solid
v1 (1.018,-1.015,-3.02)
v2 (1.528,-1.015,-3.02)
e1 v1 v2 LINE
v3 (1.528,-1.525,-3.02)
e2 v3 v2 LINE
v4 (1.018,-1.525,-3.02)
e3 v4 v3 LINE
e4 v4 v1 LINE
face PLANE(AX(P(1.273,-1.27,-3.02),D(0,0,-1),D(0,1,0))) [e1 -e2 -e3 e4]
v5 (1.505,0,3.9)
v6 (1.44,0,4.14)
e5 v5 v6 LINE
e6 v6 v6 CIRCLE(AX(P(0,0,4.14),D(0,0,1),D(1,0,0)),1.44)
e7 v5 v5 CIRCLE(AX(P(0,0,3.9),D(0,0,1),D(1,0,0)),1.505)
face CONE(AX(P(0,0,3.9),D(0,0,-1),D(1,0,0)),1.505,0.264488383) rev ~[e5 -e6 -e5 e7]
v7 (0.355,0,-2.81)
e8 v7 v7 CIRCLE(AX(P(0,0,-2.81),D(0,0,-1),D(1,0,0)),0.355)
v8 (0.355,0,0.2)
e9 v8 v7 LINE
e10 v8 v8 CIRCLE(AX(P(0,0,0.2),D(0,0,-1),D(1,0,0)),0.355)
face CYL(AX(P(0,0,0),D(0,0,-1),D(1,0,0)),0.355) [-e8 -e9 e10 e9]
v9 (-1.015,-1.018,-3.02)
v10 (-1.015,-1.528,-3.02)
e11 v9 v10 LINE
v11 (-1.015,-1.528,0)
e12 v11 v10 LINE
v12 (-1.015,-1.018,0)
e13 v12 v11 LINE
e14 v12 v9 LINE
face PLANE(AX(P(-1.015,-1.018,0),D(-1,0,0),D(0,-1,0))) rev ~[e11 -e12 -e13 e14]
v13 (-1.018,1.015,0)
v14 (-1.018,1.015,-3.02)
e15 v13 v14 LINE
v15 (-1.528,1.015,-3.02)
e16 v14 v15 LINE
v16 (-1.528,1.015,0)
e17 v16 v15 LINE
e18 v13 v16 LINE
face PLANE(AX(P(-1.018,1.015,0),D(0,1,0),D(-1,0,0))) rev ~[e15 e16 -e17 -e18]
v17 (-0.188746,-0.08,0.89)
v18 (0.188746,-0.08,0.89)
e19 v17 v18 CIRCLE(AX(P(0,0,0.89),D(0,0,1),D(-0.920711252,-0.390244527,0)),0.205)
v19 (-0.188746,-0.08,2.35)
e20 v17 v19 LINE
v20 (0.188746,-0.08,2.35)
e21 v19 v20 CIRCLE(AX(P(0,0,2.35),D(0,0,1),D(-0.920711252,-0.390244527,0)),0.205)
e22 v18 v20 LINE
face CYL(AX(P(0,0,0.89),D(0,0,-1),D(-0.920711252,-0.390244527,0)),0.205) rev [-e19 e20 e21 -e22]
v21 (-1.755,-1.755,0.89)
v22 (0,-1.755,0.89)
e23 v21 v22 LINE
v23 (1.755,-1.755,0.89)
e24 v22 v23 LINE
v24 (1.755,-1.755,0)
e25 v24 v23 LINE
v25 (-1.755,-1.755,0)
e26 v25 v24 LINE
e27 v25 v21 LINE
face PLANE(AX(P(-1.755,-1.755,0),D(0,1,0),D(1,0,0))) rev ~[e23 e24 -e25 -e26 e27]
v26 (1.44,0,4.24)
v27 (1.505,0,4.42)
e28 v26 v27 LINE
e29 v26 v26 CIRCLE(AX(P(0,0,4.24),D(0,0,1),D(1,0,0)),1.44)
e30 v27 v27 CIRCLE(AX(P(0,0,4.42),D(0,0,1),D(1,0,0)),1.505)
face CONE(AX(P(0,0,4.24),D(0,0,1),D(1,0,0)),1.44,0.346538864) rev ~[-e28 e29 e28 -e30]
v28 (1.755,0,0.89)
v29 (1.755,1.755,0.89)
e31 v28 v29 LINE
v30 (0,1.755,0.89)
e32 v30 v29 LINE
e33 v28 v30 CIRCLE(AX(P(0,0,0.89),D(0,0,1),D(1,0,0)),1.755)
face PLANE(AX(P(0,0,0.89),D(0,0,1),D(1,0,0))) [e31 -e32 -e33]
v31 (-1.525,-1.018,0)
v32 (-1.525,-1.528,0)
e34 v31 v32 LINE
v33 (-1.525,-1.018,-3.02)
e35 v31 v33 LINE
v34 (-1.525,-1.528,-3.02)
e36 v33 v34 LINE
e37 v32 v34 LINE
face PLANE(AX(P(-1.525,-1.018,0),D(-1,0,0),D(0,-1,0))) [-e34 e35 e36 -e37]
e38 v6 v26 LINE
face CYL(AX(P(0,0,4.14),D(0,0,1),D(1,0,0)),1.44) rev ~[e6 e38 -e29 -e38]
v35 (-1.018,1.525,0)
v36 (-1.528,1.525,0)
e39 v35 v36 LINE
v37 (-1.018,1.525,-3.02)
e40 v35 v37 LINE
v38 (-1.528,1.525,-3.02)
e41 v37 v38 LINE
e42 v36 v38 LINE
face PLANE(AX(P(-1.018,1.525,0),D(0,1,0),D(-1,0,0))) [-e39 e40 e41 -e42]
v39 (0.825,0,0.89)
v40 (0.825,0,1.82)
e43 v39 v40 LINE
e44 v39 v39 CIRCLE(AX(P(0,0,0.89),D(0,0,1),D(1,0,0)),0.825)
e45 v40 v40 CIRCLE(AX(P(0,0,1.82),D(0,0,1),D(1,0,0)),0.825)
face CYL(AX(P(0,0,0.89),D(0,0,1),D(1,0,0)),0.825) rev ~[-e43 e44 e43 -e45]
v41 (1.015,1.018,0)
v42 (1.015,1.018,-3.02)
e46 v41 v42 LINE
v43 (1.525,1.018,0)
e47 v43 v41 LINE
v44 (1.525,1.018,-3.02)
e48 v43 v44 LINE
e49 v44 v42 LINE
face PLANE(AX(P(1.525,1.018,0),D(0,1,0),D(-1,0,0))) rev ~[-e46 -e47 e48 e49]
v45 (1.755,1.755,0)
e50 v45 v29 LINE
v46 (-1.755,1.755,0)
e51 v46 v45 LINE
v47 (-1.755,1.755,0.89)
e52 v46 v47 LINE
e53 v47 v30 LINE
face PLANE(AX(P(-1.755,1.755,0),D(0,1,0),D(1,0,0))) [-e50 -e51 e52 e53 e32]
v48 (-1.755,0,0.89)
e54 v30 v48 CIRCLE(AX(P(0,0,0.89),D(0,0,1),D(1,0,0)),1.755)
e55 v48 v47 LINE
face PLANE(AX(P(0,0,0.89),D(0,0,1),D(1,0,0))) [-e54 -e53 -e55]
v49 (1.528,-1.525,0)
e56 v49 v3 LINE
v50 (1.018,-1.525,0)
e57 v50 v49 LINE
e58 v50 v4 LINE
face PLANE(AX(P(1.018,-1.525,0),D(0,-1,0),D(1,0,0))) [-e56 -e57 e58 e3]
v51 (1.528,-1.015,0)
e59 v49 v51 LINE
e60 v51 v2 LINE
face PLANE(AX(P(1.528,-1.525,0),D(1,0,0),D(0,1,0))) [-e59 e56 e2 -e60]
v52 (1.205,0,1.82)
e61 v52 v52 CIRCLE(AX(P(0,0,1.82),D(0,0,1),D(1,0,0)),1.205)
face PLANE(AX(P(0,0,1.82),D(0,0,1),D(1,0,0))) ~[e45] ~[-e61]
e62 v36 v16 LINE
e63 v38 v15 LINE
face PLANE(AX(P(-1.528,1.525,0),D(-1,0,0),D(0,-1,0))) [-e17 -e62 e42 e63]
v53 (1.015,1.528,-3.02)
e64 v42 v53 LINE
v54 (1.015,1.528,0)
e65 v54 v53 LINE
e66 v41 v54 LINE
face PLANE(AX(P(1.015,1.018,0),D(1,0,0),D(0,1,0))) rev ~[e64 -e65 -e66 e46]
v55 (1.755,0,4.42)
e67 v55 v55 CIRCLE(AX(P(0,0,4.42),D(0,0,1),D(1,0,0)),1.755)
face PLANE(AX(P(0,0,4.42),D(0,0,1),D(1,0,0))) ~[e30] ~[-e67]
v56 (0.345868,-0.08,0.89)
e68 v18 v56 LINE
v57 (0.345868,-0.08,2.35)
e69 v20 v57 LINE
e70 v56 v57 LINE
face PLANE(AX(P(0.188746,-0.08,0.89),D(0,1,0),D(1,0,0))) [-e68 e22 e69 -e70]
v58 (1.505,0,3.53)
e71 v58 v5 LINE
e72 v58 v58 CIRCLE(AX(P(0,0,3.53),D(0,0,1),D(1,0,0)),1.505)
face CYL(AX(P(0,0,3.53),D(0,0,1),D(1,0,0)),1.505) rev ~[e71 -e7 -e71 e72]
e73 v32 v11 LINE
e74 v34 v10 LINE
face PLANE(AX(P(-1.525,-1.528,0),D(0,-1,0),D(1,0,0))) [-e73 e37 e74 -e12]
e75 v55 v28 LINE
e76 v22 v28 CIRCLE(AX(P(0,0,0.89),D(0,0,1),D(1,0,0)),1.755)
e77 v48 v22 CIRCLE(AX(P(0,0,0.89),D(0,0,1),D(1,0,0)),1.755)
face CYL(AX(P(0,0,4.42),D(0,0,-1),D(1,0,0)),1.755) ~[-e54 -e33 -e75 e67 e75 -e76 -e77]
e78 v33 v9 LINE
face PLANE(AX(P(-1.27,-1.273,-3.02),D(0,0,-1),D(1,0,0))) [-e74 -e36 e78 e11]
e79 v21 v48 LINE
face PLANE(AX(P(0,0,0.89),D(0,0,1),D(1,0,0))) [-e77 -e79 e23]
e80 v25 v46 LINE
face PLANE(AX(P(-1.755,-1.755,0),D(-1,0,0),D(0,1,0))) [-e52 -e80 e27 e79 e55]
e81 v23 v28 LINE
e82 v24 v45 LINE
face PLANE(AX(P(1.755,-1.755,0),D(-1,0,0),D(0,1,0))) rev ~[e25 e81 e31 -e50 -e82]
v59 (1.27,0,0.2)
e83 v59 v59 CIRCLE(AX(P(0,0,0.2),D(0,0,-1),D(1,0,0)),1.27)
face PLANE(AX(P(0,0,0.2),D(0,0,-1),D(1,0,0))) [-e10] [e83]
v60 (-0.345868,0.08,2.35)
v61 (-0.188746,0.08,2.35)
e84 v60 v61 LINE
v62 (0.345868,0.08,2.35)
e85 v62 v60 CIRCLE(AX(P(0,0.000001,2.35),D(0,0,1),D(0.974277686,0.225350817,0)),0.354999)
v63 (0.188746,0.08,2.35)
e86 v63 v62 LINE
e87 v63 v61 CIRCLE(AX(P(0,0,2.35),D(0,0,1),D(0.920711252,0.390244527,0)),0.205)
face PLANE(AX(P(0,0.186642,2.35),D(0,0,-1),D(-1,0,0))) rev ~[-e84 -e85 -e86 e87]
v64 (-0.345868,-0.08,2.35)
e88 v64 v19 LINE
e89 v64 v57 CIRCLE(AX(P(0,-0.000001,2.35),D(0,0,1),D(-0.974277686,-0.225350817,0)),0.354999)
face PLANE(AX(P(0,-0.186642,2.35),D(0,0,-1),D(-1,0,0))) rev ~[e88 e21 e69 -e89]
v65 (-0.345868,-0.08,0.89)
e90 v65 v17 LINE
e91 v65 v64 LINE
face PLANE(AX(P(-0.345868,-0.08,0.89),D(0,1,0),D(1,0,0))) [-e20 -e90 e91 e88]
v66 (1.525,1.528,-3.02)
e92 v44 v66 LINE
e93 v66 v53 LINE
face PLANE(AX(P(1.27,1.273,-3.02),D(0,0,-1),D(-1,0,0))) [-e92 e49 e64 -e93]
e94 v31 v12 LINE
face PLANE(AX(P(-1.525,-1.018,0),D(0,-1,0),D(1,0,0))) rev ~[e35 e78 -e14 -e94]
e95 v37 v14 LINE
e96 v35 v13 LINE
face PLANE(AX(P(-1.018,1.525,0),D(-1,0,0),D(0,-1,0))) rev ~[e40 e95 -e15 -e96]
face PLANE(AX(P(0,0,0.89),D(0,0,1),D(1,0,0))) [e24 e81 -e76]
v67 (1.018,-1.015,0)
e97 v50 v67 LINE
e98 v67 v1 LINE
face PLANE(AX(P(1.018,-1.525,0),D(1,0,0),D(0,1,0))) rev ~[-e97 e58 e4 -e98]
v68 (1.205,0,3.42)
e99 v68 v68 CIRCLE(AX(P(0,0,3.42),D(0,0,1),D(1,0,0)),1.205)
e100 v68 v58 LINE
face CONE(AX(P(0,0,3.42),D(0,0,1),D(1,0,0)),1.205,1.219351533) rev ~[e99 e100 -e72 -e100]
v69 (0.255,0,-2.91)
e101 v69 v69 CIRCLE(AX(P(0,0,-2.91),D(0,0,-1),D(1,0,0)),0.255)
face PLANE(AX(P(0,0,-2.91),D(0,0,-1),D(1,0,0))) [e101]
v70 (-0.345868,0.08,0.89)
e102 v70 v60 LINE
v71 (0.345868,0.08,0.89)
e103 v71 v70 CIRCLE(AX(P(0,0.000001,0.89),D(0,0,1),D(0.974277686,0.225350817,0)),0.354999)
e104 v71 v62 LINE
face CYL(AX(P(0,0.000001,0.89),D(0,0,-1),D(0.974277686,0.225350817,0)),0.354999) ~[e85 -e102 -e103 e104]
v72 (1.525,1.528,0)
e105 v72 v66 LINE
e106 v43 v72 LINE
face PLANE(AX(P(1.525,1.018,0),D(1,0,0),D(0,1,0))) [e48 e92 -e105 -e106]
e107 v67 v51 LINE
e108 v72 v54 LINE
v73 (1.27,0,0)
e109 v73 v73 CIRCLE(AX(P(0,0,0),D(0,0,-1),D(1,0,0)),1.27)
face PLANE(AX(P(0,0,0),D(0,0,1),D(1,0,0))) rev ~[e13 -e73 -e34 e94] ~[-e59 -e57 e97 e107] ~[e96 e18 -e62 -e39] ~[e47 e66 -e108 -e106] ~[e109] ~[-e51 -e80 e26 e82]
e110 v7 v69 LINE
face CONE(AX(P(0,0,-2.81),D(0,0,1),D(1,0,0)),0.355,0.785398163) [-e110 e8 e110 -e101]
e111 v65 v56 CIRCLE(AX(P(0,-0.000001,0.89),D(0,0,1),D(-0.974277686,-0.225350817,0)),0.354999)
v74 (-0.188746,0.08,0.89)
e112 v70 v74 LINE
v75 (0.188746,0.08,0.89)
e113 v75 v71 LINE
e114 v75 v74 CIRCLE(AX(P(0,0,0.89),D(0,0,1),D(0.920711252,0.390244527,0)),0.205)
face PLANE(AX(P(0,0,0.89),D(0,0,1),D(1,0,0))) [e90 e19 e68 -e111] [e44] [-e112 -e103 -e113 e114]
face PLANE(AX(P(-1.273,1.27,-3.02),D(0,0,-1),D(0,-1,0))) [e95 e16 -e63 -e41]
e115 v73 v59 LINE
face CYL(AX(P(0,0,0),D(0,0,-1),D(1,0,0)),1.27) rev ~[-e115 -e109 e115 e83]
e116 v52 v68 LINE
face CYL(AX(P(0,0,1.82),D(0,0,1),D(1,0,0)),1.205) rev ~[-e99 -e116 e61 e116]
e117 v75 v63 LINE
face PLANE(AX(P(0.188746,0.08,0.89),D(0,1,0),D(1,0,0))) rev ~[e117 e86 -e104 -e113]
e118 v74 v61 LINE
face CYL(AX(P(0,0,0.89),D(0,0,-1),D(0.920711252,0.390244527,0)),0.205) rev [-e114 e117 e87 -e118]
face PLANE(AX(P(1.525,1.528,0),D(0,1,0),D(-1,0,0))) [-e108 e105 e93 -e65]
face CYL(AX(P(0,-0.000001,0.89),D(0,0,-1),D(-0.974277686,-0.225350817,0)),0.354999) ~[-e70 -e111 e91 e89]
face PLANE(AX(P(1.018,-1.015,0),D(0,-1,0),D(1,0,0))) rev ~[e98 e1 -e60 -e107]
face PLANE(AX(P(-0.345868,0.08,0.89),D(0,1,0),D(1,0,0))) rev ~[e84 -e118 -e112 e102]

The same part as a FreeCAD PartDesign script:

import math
import FreeCAD as App
import Part
import Sketcher
Q = App.Units.Quantity


def edges_at(feature, points):
    """Names of the edges that pass closest to the given points."""
    edges = feature.Shape.Edges
    near = lambda p: min(range(len(edges)), key=lambda i: edges[i].distToShape(Part.Vertex(*p))[0])
    return sorted({f"Edge{near(p) + 1}" for p in points})


def add_polygon(sketch, points):
    """Adds a closed chain of lines whose ends are joined by coincident constraints."""
    first, n = sketch.GeometryCount, len(points)
    for a, b in zip(points, points[1:] + points[:1]):
        sketch.addGeometry(Part.LineSegment(App.Vector(*a, 0), App.Vector(*b, 0)), False)
    for i in range(n):
        sketch.addConstraint(Sketcher.Constraint("Coincident", first + i, 2, first + (i + 1) % n, 1))

doc = App.newDocument("Part")
body = doc.addObject("PartDesign::Body", "Body")

# Sketch on XY plane
sketch1 = body.newObject("Sketcher::SketchObject", "Sketch")
sketch1.AttachmentSupport = (doc.getObject("XY_Plane"), [""])
sketch1.MapMode = "FlatFace"
add_polygon(sketch1, [(-1.8, 1.8), (-1.8, -1.8), (1.8, -1.8), (1.8, 1.8)])  # lines 0-3
sketch1.addConstraint([
    Sketcher.Constraint("Vertical", 0),
    Sketcher.Constraint("Horizontal", 1),
    Sketcher.Constraint("Vertical", 2),
    Sketcher.Constraint("Horizontal", 3),
    Sketcher.Constraint("Symmetric", 0, 2, 2, 2, -1, 1),
    Sketcher.Constraint("Equal", 3, 0),
    Sketcher.Constraint("DistanceX", 1, 1, 1, 2, Q("3.51 mm")),
])
pad1 = body.newObject("PartDesign::Pad", "Pad")
pad1.Profile = sketch1
pad1.Length = 0.89

# Sketch on XZ plane
sketch2 = body.newObject("Sketcher::SketchObject", "Sketch001")
sketch2.AttachmentSupport = (doc.getObject("XZ_Plane"), [""])
sketch2.MapMode = "FlatFace"
add_polygon(sketch2, [(0.82, 0.89), (1.75, 0.89), (1.75, 4.42), (1.5, 4.42), (1.44, 4.24), (1.44, 4.14), (1.5, 3.9), (1.5, 3.53), (1.21, 3.42), (1.21, 1.82), (0.82, 1.82)])  # lines 0-10
sketch2.addConstraint([
    Sketcher.Constraint("Horizontal", 0),
    Sketcher.Constraint("Vertical", 1),
    Sketcher.Constraint("Horizontal", 2),
    Sketcher.Constraint("Vertical", 4),
    Sketcher.Constraint("Vertical", 6),
    Sketcher.Constraint("Vertical", 8),
    Sketcher.Constraint("Horizontal", 9),
    Sketcher.Constraint("Vertical", 10),
    Sketcher.Constraint("Vertical", 2, 2, 5, 2),
    Sketcher.Constraint("Equal", 0, 10),
    Sketcher.Constraint("DistanceY", 4, 2, 4, 1, Q("0.1 mm")),
    Sketcher.Constraint("DistanceY", 8, 2, 8, 1, Q("1.6 mm")),
    Sketcher.Constraint("DistanceY", 7, 2, 2, 2, Q("1 mm")),
    Sketcher.Constraint("DistanceX", 0, 1, 0, 2, Q("0.93 mm")),
    Sketcher.Constraint("DistanceX", 2, 2, 2, 1, Q("0.25 mm")),
    Sketcher.Constraint("DistanceX", 9, 2, 9, 1, Q("0.38 mm")),
    Sketcher.Constraint("DistanceY", 6, 2, 6, 1, Q("0.37 mm")),
    Sketcher.Constraint("DistanceY", -1, 1, 5, 2, Q("3.9 mm")),
    Sketcher.Constraint("DistanceY", -1, 1, 0, 2, Q("0.89 mm")),
    Sketcher.Constraint("DistanceX", -1, 1, 3, 2, Q("1.44 mm")),
    Sketcher.Constraint("DistanceY", -1, 1, 3, 2, Q("4.24 mm")),
    Sketcher.Constraint("DistanceX", -1, 1, 0, 2, Q("1.755 mm")),
])
revolution = body.newObject("PartDesign::Revolution", "Revolution")
revolution.Profile = sketch2
revolution.ReferenceAxis = (sketch2, ["V_Axis"])
revolution.Angle = 360

# Sketch on XY plane
sketch3 = body.newObject("Sketcher::SketchObject", "Sketch002")
sketch3.AttachmentSupport = (doc.getObject("XY_Plane"), [""])
sketch3.MapMode = "FlatFace"
sketch3.addGeometry(Part.Circle(App.Vector(0, 0, 0), App.Vector(0, 0, 1), 0.35), False)
sketch3.addConstraint([
    Sketcher.Constraint("Coincident", 0, 3, -1, 1),
    Sketcher.Constraint("Diameter", 0, Q("0.71 mm")),
])
pad2 = body.newObject("PartDesign::Pad", "Pad001")
pad2.Profile = sketch3
pad2.Length = 2.91
pad2.Reversed = True

# Sketch on XY plane
sketch4 = body.newObject("Sketcher::SketchObject", "Sketch003")
sketch4.AttachmentSupport = (doc.getObject("XY_Plane"), [""])
sketch4.MapMode = "FlatFace"
sketch4.AttachmentOffset = App.Placement(App.Vector(0, 0, 0.89), App.Rotation())
sketch4.addGeometry([
    Part.ArcOfCircle(Part.Circle(App.Vector(0, 0, 0), App.Vector(0, 0, 1), 0.21), math.radians(23), math.radians(157)),  # 0
    Part.LineSegment(App.Vector(0.19, 0.08, 0), App.Vector(0.35, 0.08, 0)),  # 1
    Part.ArcOfCircle(Part.Circle(App.Vector(0, 0, 0), App.Vector(0, 0, 1), 0.35), math.radians(13), math.radians(167)),  # 2
    Part.LineSegment(App.Vector(-0.35, 0.08, 0), App.Vector(-0.19, 0.08, 0)),  # 3
    Part.ArcOfCircle(Part.Circle(App.Vector(0, 0, 0), App.Vector(0, 0, 1), 0.21), math.radians(-157), math.radians(-23)),  # 4
    Part.LineSegment(App.Vector(-0.19, -0.08, 0), App.Vector(-0.35, -0.08, 0)),  # 5
    Part.ArcOfCircle(Part.Circle(App.Vector(0, 0, 0), App.Vector(0, 0, 1), 0.35), math.radians(-167), math.radians(-13)),  # 6
    Part.LineSegment(App.Vector(0.35, -0.08, 0), App.Vector(0.19, -0.08, 0)),  # 7
], False)
sketch4.addConstraint([
    Sketcher.Constraint("Coincident", 0, 1, 1, 1),
    Sketcher.Constraint("Coincident", 1, 2, 2, 1),
    Sketcher.Constraint("Coincident", 2, 2, 3, 1),
    Sketcher.Constraint("Coincident", 3, 2, 0, 2),
    Sketcher.Constraint("Coincident", 4, 1, 5, 1),
    Sketcher.Constraint("Coincident", 5, 2, 6, 1),
    Sketcher.Constraint("Coincident", 6, 2, 7, 1),
    Sketcher.Constraint("Coincident", 7, 2, 4, 2),
    Sketcher.Constraint("Horizontal", 1),
    Sketcher.Constraint("Horizontal", 3),
    Sketcher.Constraint("Horizontal", 5),
    Sketcher.Constraint("Horizontal", 7),
    Sketcher.Constraint("Coincident", 0, 3, -1, 1),
    Sketcher.Constraint("Coincident", 2, 3, -1, 1),
    Sketcher.Constraint("Coincident", 4, 3, -1, 1),
    Sketcher.Constraint("Coincident", 6, 3, -1, 1),
    Sketcher.Constraint("Equal", 0, 4),
    Sketcher.Constraint("Equal", 2, 6),
    Sketcher.Constraint("Horizontal", 1, 2, 2, 2),
    Sketcher.Constraint("Horizontal", 5, 2, 6, 2),
    Sketcher.Constraint("Vertical", 3, 2, 4, 1),
    Sketcher.Constraint("Radius", 0, Q("0.205 mm")),
    Sketcher.Constraint("Radius", 2, Q("0.354999 mm")),
    Sketcher.Constraint("DistanceY", -1, 1, 0, 1, Q("0.08 mm")),
])
pad3 = body.newObject("PartDesign::Pad", "Pad002")
pad3.Profile = sketch4
pad3.Length = 1.46

# Sketch on XY plane
sketch5 = body.newObject("Sketcher::SketchObject", "Sketch004")
sketch5.AttachmentSupport = (doc.getObject("XY_Plane"), [""])
sketch5.MapMode = "FlatFace"
sketch5.addGeometry([
    Part.Circle(App.Vector(0, 0, 0), App.Vector(0, 0, 1), 1.27),
    Part.Circle(App.Vector(0, 0, 0), App.Vector(0, 0, 1), 0.35),
], False)
sketch5.addConstraint([
    Sketcher.Constraint("Coincident", 0, 3, -1, 1),
    Sketcher.Constraint("Coincident", 1, 3, -1, 1),
    Sketcher.Constraint("Diameter", 0, Q("2.54 mm")),
    Sketcher.Constraint("Diameter", 1, Q("0.71 mm")),
])
pocket1 = body.newObject("PartDesign::Pocket", "Pocket")
pocket1.Profile = sketch5
pocket1.Length = 0.2
pocket1.Reversed = True

# Sketch on XY plane
sketch6 = body.newObject("Sketcher::SketchObject", "Sketch005")
sketch6.AttachmentSupport = (doc.getObject("XY_Plane"), [""])
sketch6.MapMode = "FlatFace"
add_polygon(sketch6, [(-1.5, -1.5), (-1.5, -1), (-1, -1), (-1, -1.5)])  # lines 0-3
sketch6.addConstraint([
    Sketcher.Constraint("Vertical", 0),
    Sketcher.Constraint("Horizontal", 1),
    Sketcher.Constraint("Vertical", 2),
    Sketcher.Constraint("Horizontal", 3),
    Sketcher.Constraint("Equal", 3, 0),
    Sketcher.Constraint("DistanceX", 1, 1, 1, 2, Q("0.51 mm")),
    Sketcher.Constraint("DistanceX", 0, 2, -1, 1, Q("1.525 mm")),
    Sketcher.Constraint("DistanceY", 0, 2, -1, 1, Q("1.018 mm")),
])
pad4 = body.newObject("PartDesign::Pad", "Pad003")
pad4.Profile = sketch6
pad4.Length = 3.02
pad4.Reversed = True
doc.recompute()

polarpattern = body.newObject("PartDesign::PolarPattern", "PolarPattern")
polarpattern.Originals = [pad4]
polarpattern.Axis = (doc.getObject("Z_Axis"), [""])
polarpattern.Angle = 360
polarpattern.Occurrences = 4
body.Tip = polarpattern
doc.recompute()

chamfer = body.newObject("PartDesign::Chamfer", "Chamfer")
chamfer.Base = (polarpattern, edges_at(polarpattern, [(-0.355, 0, -2.91)]))
chamfer.Size = 0.1

doc.recompute()
